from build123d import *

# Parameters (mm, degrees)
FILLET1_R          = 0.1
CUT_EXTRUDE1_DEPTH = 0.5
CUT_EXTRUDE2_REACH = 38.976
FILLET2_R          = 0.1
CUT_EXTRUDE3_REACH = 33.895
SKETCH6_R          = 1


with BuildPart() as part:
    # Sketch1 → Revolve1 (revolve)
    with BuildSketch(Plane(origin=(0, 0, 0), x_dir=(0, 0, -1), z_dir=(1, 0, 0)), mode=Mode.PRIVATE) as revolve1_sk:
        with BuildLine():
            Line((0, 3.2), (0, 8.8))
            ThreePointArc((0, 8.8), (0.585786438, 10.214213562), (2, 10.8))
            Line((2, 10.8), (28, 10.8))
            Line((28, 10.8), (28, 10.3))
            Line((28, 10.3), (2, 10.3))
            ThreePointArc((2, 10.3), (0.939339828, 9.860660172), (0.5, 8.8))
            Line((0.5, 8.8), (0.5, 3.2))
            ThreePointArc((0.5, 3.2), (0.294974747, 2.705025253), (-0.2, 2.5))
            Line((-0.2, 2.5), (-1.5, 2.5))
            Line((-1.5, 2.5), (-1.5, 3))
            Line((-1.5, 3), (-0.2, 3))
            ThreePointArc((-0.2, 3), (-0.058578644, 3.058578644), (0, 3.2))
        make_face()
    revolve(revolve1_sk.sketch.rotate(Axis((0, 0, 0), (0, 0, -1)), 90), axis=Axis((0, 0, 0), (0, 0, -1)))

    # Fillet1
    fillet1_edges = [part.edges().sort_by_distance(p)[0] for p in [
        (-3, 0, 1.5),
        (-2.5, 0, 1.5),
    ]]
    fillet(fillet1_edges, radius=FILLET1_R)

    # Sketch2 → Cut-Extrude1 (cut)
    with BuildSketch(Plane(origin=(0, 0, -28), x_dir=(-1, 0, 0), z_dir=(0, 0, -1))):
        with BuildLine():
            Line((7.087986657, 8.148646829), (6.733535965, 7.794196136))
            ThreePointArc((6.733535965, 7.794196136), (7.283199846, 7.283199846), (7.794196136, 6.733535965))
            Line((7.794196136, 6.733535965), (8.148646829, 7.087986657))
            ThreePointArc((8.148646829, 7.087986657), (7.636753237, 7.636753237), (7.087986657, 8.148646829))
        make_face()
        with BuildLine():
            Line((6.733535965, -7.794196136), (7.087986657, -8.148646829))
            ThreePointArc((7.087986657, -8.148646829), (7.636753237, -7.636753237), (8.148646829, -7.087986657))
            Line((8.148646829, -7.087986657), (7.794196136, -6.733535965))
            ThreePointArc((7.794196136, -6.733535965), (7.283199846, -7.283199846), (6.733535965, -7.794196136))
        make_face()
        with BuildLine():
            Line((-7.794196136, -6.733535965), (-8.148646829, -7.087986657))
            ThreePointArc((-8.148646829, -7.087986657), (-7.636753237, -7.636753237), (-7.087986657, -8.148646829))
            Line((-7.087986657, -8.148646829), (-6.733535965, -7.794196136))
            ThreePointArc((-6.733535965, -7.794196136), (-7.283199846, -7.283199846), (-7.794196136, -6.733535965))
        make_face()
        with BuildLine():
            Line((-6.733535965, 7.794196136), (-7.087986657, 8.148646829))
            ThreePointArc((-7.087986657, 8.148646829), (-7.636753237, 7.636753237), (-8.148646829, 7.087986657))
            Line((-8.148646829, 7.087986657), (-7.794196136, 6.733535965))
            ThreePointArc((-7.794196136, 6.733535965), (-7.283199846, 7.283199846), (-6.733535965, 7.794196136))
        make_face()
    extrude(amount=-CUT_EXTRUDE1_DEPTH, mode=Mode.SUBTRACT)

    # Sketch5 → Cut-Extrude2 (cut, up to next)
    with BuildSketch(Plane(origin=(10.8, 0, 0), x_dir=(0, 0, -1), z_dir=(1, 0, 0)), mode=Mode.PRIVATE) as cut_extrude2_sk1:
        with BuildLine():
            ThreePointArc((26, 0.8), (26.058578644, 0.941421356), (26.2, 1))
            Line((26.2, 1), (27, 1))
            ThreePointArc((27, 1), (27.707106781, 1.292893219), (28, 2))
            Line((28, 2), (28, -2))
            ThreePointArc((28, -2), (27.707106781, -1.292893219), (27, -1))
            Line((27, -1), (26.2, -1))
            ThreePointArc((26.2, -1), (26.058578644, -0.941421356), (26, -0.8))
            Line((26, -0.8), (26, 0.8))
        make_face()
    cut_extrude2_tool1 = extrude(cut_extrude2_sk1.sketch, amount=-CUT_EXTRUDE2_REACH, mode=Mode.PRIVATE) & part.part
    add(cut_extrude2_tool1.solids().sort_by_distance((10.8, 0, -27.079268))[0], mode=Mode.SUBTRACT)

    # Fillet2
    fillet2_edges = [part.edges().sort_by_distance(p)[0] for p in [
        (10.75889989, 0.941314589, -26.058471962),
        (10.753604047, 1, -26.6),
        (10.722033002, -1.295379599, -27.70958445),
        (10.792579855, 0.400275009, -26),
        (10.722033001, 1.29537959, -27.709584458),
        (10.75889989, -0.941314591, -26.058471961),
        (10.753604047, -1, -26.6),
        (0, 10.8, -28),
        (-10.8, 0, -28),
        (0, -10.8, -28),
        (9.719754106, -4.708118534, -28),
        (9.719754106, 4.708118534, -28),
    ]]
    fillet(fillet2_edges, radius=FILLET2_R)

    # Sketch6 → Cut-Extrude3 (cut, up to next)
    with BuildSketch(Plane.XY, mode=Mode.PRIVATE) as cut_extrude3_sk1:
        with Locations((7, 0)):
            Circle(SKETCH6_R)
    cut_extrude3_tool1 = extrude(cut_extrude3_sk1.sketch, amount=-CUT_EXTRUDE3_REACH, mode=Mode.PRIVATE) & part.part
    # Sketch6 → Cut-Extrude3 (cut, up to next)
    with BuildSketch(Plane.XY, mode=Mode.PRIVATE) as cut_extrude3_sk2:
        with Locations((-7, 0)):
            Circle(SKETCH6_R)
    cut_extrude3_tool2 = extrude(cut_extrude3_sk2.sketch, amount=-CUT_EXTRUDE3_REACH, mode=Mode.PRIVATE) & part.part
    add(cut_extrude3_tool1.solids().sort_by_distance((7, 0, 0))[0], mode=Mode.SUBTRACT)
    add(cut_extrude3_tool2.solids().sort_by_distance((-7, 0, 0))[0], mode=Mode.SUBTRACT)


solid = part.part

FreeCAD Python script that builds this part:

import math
import FreeCAD as App
import Part
import Sketcher
from FreeCAD import Vector
Q = App.Units.Quantity


def edges_at(feature, points):
    """Names of the edges that pass closest to the given points."""
    edges = feature.Shape.Edges
    near = lambda p: min(range(len(edges)), key=lambda i: edges[i].distToShape(Part.Vertex(*p))[0])
    return sorted({f"Edge{near(p) + 1}" for p in points})

doc = App.newDocument("Part")
body = doc.addObject("PartDesign::Body", "Body")

sketch1 = body.newObject("Sketcher::SketchObject", "Sketch")
sketch1.AttachmentSupport = (doc.getObject("YZ_Plane"), [""])
sketch1.MapMode = "FlatFace"
sketch1.addGeometry([
    Part.LineSegment(Vector(8.8, 0, 0), Vector(3.2, 0, 0)),
    Part.ArcOfCircle(Part.Circle(Vector(3.2, 0.2, 0), Vector(0, 0, 1), 0.2), math.radians(-180), math.radians(-90)),
    Part.LineSegment(Vector(3, 0.2, 0), Vector(3, 1.5, 0)),
    Part.LineSegment(Vector(3, 1.5, 0), Vector(2.5, 1.5, 0)),
    Part.LineSegment(Vector(2.5, 1.5, 0), Vector(2.5, 0.2, 0)),
    Part.ArcOfCircle(Part.Circle(Vector(3.2, 0.2, 0), Vector(0, 0, 1), 0.7), math.radians(180), math.radians(270)),
    Part.LineSegment(Vector(3.2, -0.5, 0), Vector(8.8, -0.5, 0)),
    Part.ArcOfCircle(Part.Circle(Vector(8.8, -2, 0), Vector(0, 0, 1), 1.5), math.radians(0), math.radians(90)),
    Part.LineSegment(Vector(10.3, -2, 0), Vector(10.3, -28, 0)),
    Part.LineSegment(Vector(10.3, -28, 0), Vector(10.8, -28, 0)),
    Part.LineSegment(Vector(10.8, -28, 0), Vector(10.8, -2, 0)),
    Part.ArcOfCircle(Part.Circle(Vector(8.8, -2, 0), Vector(0, 0, 1), 2), math.radians(0), math.radians(90)),
], False)
sketch1.addConstraint([
    Sketcher.Constraint("Tangent", 0, 2, 1, 2),
    Sketcher.Constraint("Tangent", 1, 1, 2, 1),
    Sketcher.Constraint("Coincident", 2, 2, 3, 1),
    Sketcher.Constraint("Coincident", 3, 2, 4, 1),
    Sketcher.Constraint("Tangent", 4, 2, 5, 1),
    Sketcher.Constraint("Tangent", 5, 2, 6, 1),
    Sketcher.Constraint("Tangent", 6, 2, 7, 2),
    Sketcher.Constraint("Tangent", 7, 1, 8, 1),
    Sketcher.Constraint("Coincident", 8, 2, 9, 1),
    Sketcher.Constraint("Coincident", 9, 2, 10, 1),
    Sketcher.Constraint("Tangent", 10, 2, 11, 1),
    Sketcher.Constraint("Tangent", 11, 2, 0, 1),
    Sketcher.Constraint("Horizontal", 0),
    Sketcher.Constraint("Vertical", 2),
    Sketcher.Constraint("Horizontal", 3),
    Sketcher.Constraint("Vertical", 4),
    Sketcher.Constraint("Horizontal", 6),
    Sketcher.Constraint("Vertical", 8),
    Sketcher.Constraint("Horizontal", 9),
    Sketcher.Constraint("Vertical", 10),
    Sketcher.Constraint("Coincident", 5, 3, 1, 3),
    Sketcher.Constraint("Coincident", 11, 3, 7, 3),
    Sketcher.Constraint("PointOnObject", 0, 2, -1),
    Sketcher.Constraint("Radius", 11, Q("2 mm")),
    Sketcher.Constraint("Radius", 1, Q("0.2 mm")),
    Sketcher.Constraint("Radius", 5, Q("0.7 mm")),
    Sketcher.Constraint("DistanceY", 8, 2, 8, 1, Q("26 mm")),
    Sketcher.Constraint("DistanceX", 0, 2, 0, 1, Q("5.6 mm")),
    Sketcher.Constraint("DistanceY", 2, 1, 2, 2, Q("1.3 mm")),
    Sketcher.Constraint("DistanceX", -1, 1, 1, 1, Q("3 mm")),
])
revolution = body.newObject("PartDesign::Revolution", "Revolution")
revolution.Profile = sketch1
revolution.ReferenceAxis = (sketch1, ["V_Axis"])
revolution.Angle = 360
doc.recompute()

fillet = body.newObject("PartDesign::Fillet", "Fillet")
fillet.Base = (revolution, edges_at(revolution, [(-3, 0, 1.5), (-2.5, 0, 1.5)]))
fillet.Radius = 0.1

sketch2 = body.newObject("Sketcher::SketchObject", "Sketch001")
sketch2.AttachmentSupport = (doc.getObject("XY_Plane"), [""])
sketch2.MapMode = "FlatFace"
sketch2.AttachmentOffset = App.Placement(Vector(0, 0, -28), App.Rotation())
sketch2.addGeometry([
    Part.LineSegment(Vector(-7.087987, 8.148647, 0), Vector(-6.733536, 7.794196, 0)),
    Part.ArcOfCircle(Part.Circle(Vector(0, 0, 0), Vector(0, 0, 1), 10.3), math.radians(130.824282), math.radians(139.175718)),
    Part.LineSegment(Vector(-7.794196, 6.733536, 0), Vector(-8.148647, 7.087987, 0)),
    Part.ArcOfCircle(Part.Circle(Vector(0, 0, 0), Vector(0, 0, 1), 10.8), math.radians(131.017921), math.radians(138.982079)),
    Part.LineSegment(Vector(-6.733536, -7.794196, 0), Vector(-7.087987, -8.148647, 0)),
    Part.ArcOfCircle(Part.Circle(Vector(0, 0, 0), Vector(0, 0, 1), 10.8), math.radians(-138.982079), math.radians(-131.017921)),
    Part.LineSegment(Vector(-8.148647, -7.087987, 0), Vector(-7.794196, -6.733536, 0)),
    Part.ArcOfCircle(Part.Circle(Vector(0, 0, 0), Vector(0, 0, 1), 10.3), math.radians(-139.175718), math.radians(-130.824282)),
    Part.LineSegment(Vector(7.794196, -6.733536, 0), Vector(8.148647, -7.087987, 0)),
    Part.ArcOfCircle(Part.Circle(Vector(0, 0, 0), Vector(0, 0, 1), 10.8), math.radians(-48.982079), math.radians(-41.017921)),
    Part.LineSegment(Vector(7.087987, -8.148647, 0), Vector(6.733536, -7.794196, 0)),
    Part.ArcOfCircle(Part.Circle(Vector(0, 0, 0), Vector(0, 0, 1), 10.3), math.radians(-49.175718), math.radians(-40.824282)),
    Part.LineSegment(Vector(6.733536, 7.794196, 0), Vector(7.087987, 8.148647, 0)),
    Part.ArcOfCircle(Part.Circle(Vector(0, 0, 0), Vector(0, 0, 1), 10.8), math.radians(41.017921), math.radians(48.982079)),
    Part.LineSegment(Vector(8.148647, 7.087987, 0), Vector(7.794196, 6.733536, 0)),
    Part.ArcOfCircle(Part.Circle(Vector(0, 0, 0), Vector(0, 0, 1), 10.3), math.radians(40.824282), math.radians(49.175718)),
], False)
sketch2.addConstraint([
    Sketcher.Constraint("Coincident", 0, 2, 1, 1),
    Sketcher.Constraint("Coincident", 1, 2, 2, 1),
    Sketcher.Constraint("Coincident", 2, 2, 3, 2),
    Sketcher.Constraint("Coincident", 3, 1, 0, 1),
    Sketcher.Constraint("Coincident", 4, 2, 5, 2),
    Sketcher.Constraint("Coincident", 5, 1, 6, 1),
    Sketcher.Constraint("Coincident", 6, 2, 7, 1),
    Sketcher.Constraint("Coincident", 7, 2, 4, 1),
    Sketcher.Constraint("Coincident", 8, 2, 9, 2),
    Sketcher.Constraint("Coincident", 9, 1, 10, 1),
    Sketcher.Constraint("Coincident", 10, 2, 11, 1),
    Sketcher.Constraint("Coincident", 11, 2, 8, 1),
    Sketcher.Constraint("Coincident", 12, 2, 13, 2),
    Sketcher.Constraint("Coincident", 13, 1, 14, 1),
    Sketcher.Constraint("Coincident", 14, 2, 15, 1),
    Sketcher.Constraint("Coincident", 15, 2, 12, 1),
    Sketcher.Constraint("Coincident", 1, 3, -1, 1),
    Sketcher.Constraint("Coincident", 3, 3, -1, 1),
    Sketcher.Constraint("Coincident", 5, 3, -1, 1),
    Sketcher.Constraint("Coincident", 7, 3, -1, 1),
    Sketcher.Constraint("Coincident", 9, 3, -1, 1),
    Sketcher.Constraint("Coincident", 11, 3, -1, 1),
    Sketcher.Constraint("Coincident", 13, 3, -1, 1),
    Sketcher.Constraint("Coincident", 15, 3, -1, 1),
    Sketcher.Constraint("Equal", 3, 5),
    Sketcher.Constraint("Equal", 1, 7),
    Sketcher.Constraint("Equal", 5, 9),
    Sketcher.Constraint("Equal", 7, 11),
    Sketcher.Constraint("Equal", 9, 13),
    Sketcher.Constraint("Equal", 11, 15),
    Sketcher.Constraint("Parallel", 0, 2),
    Sketcher.Constraint("Perpendicular", 2, 4),
    Sketcher.Constraint("Parallel", 4, 6),
    Sketcher.Constraint("Perpendicular", 6, 8),
    Sketcher.Constraint("Parallel", 8, 10),
    Sketcher.Constraint("Perpendicular", 10, 12),
    Sketcher.Constraint("Parallel", 12, 14),
    Sketcher.Constraint("Horizontal", 5, 1, 8, 2),
    Sketcher.Constraint("Horizontal", 4, 2, 9, 1),
    Sketcher.Constraint("Horizontal", 7, 2, 10, 2),
    Sketcher.Constraint("Horizontal", 3, 1, 12, 2),
    Sketcher.Constraint("Horizontal", 2, 2, 13, 1),
    Sketcher.Constraint("Vertical", 3, 1, 4, 2),
    Sketcher.Constraint("Vertical", 2, 2, 5, 1),
    Sketcher.Constraint("Radius", 1, Q("10.3 mm")),
    Sketcher.Constraint("Radius", 3, Q("10.8 mm")),
    Sketcher.Constraint("DistanceX", 1, 2, 0, 2, Q("1.06066 mm")),
    Sketcher.Constraint("DistanceY", 1, 2, 0, 2, Q("1.06066 mm")),
])
pocket1 = body.newObject("PartDesign::Pocket", "Pocket")
pocket1.Profile = sketch2
pocket1.Length = 0.5
pocket1.Reversed = True

sketch3 = body.newObject("Sketcher::SketchObject", "Sketch002")
sketch3.AttachmentSupport = (doc.getObject("YZ_Plane"), [""])
sketch3.MapMode = "FlatFace"
sketch3.AttachmentOffset = App.Placement(Vector(0, 0, 10.8), App.Rotation())
sketch3.addGeometry([
    Part.ArcOfCircle(Part.Circle(Vector(0.8, -26.2, 0), Vector(0, 0, 1), 0.2), math.radians(0), math.radians(90)),
    Part.LineSegment(Vector(0.8, -26, 0), Vector(-0.8, -26, 0)),
    Part.ArcOfCircle(Part.Circle(Vector(-0.8, -26.2, 0), Vector(0, 0, 1), 0.2), math.radians(90), math.radians(180)),
    Part.LineSegment(Vector(-1, -26.2, 0), Vector(-1, -27, 0)),
    Part.ArcOfCircle(Part.Circle(Vector(-2, -27, 0), Vector(0, 0, 1), 1), math.radians(-90), math.radians(0)),
    Part.LineSegment(Vector(-2, -28, 0), Vector(2, -28, 0)),
    Part.ArcOfCircle(Part.Circle(Vector(2, -27, 0), Vector(0, 0, 1), 1), math.radians(-180), math.radians(-90)),
    Part.LineSegment(Vector(1, -27, 0), Vector(1, -26.2, 0)),
], False)
sketch3.addConstraint([
    Sketcher.Constraint("Tangent", 0, 2, 1, 1),
    Sketcher.Constraint("Tangent", 1, 2, 2, 1),
    Sketcher.Constraint("Tangent", 2, 2, 3, 1),
    Sketcher.Constraint("Tangent", 3, 2, 4, 2),
    Sketcher.Constraint("Tangent", 4, 1, 5, 1),
    Sketcher.Constraint("Tangent", 5, 2, 6, 2),
    Sketcher.Constraint("Tangent", 6, 1, 7, 1),
    Sketcher.Constraint("Tangent", 7, 2, 0, 1),
    Sketcher.Constraint("Horizontal", 1),
    Sketcher.Constraint("Vertical", 3),
    Sketcher.Constraint("Horizontal", 5),
    Sketcher.Constraint("Vertical", 7),
    Sketcher.Constraint("Equal", 0, 2),
    Sketcher.Constraint("Equal", 4, 6),
    Sketcher.Constraint("Radius", 4, Q("1 mm")),
    Sketcher.Constraint("Radius", 0, Q("0.2 mm")),
    Sketcher.Constraint("DistanceX", 5, 1, 5, 2, Q("4 mm")),
    Sketcher.Constraint("DistanceY", 3, 2, 3, 1, Q("0.8 mm")),
    Sketcher.Constraint("DistanceX", 4, 3, -1, 1, Q("2 mm")),
    Sketcher.Constraint("DistanceY", 4, 3, -1, 1, Q("27 mm")),
])
pocket2 = body.newObject("PartDesign::Pocket", "Pocket001")
pocket2.Profile = sketch3
pocket2.Type = "UpToFirst"
doc.recompute()

fillet2 = body.newObject("PartDesign::Fillet", "Fillet001")
fillet2.Base = (pocket2, edges_at(pocket2, [
    (10.759, 0.941, -26.058),
    (10.754, 1, -26.6),
    (10.722, -1.295, -27.71),
    (10.793, 0.4, -26),
    (10.722, 1.295, -27.71),
    (10.759, -0.941, -26.058),
    (10.754, -1, -26.6),
    (0, 10.8, -28),
    (-10.8, 0, -28),
    (0, -10.8, -28),
    (9.72, -4.708, -28),
    (9.72, 4.708, -28),
]))
fillet2.Radius = 0.1

sketch4 = body.newObject("Sketcher::SketchObject", "Sketch003")
sketch4.AttachmentSupport = (doc.getObject("XY_Plane"), [""])
sketch4.MapMode = "FlatFace"
sketch4.addGeometry(Part.Circle(Vector(7, 0, 0), Vector(0, 0, 1), 1), False)
sketch4.addConstraint([
    Sketcher.Constraint("PointOnObject", 0, 3, -1),
    Sketcher.Constraint("Diameter", 0, Q("2 mm")),
    Sketcher.Constraint("DistanceX", -1, 1, 0, 3, Q("7 mm")),
])
pocket3 = body.newObject("PartDesign::Pocket", "Pocket002")
pocket3.Profile = sketch4
pocket3.Type = "UpToFirst"

sketch5 = body.newObject("Sketcher::SketchObject", "Sketch004")
sketch5.AttachmentSupport = (doc.getObject("XY_Plane"), [""])
sketch5.MapMode = "FlatFace"
sketch5.addGeometry(Part.Circle(Vector(-7, 0, 0), Vector(0, 0, 1), 1), False)
sketch5.addConstraint([
    Sketcher.Constraint("PointOnObject", 0, 3, -1),
    Sketcher.Constraint("Diameter", 0, Q("2 mm")),
    Sketcher.Constraint("DistanceX", 0, 3, -1, 1, Q("7 mm")),
])
pocket4 = body.newObject("PartDesign::Pocket", "Pocket003")
pocket4.Profile = sketch5
pocket4.Type = "UpToFirst"

doc.recompute()
